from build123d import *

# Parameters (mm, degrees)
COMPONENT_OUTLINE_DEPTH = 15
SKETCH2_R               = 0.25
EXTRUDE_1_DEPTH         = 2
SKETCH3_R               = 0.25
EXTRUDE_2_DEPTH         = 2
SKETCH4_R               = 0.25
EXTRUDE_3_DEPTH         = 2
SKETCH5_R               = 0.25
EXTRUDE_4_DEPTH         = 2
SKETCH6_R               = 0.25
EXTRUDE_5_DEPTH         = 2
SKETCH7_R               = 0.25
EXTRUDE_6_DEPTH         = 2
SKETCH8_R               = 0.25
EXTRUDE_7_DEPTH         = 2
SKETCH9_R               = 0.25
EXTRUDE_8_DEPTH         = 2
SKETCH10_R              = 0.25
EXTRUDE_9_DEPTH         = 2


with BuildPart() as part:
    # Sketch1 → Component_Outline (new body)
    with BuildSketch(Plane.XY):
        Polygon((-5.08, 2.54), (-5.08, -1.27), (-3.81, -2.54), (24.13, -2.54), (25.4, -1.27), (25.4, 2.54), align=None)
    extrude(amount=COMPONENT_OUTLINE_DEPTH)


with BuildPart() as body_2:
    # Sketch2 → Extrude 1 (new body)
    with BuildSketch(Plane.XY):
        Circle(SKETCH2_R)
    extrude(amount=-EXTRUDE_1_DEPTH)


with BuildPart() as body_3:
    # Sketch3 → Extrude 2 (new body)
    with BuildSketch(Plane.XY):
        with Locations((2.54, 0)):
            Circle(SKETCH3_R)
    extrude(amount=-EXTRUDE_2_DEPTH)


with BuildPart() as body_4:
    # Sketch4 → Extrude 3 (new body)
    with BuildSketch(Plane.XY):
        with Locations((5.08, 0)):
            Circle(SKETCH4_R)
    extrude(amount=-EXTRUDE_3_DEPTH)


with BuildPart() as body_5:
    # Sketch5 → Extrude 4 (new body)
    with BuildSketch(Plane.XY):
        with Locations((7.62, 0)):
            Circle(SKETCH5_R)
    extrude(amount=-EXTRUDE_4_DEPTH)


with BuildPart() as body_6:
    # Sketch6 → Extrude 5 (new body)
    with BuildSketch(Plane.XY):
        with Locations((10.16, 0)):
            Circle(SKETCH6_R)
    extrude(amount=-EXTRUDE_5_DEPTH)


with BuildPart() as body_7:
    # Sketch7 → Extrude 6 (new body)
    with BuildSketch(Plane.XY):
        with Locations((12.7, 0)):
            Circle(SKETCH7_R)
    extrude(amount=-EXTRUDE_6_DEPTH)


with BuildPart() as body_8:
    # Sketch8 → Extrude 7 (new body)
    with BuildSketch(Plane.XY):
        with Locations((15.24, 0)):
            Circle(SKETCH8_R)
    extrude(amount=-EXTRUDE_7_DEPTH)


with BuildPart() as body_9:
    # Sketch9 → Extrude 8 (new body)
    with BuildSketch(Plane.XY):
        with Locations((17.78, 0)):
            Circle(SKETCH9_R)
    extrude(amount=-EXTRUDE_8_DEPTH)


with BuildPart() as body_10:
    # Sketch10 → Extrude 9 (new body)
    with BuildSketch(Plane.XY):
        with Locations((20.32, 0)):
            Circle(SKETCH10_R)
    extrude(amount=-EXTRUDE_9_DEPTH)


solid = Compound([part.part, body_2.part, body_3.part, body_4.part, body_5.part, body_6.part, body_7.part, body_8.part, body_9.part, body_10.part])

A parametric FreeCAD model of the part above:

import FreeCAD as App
import Part
import Sketcher

V = App.Vector
Q = App.Units.Quantity


def add_polygon(sketch, points):
    """Adds a closed chain of lines whose ends are joined by coincident constraints."""
    first, n = sketch.GeometryCount, len(points)
    for a, b in zip(points, points[1:] + points[:1]):
        sketch.addGeometry(Part.LineSegment(App.Vector(*a, 0), App.Vector(*b, 0)), False)
    for i in range(n):
        sketch.addConstraint(Sketcher.Constraint("Coincident", first + i, 2, first + (i + 1) % n, 1))

doc = App.newDocument("Part")
body = doc.addObject("PartDesign::Body", "Body")

# Sketch on XY plane
sketch1 = doc.addObject("Sketcher::SketchObject", "Sketch")
body.addObject(sketch1)
sketch1.AttachmentSupport = (doc.XY_Plane, [""])
sketch1.MapMode = "FlatFace"
add_polygon(sketch1, [(-5.1, 2.5), (-5.1, -1.3), (-3.8, -2.5), (24.1, -2.5), (25.4, -1.3), (25.4, 2.5)])  # lines 0-5
sketch1.addConstraint([
    Sketcher.Constraint("Vertical", 0),
    Sketcher.Constraint("Horizontal", 2),
    Sketcher.Constraint("Vertical", 4),
    Sketcher.Constraint("Horizontal", 5),
    Sketcher.Constraint("Perpendicular", 1, 3),
    Sketcher.Constraint("Horizontal", 0, 2, 3, 2),
    Sketcher.Constraint("Equal", 1, 3),
    Sketcher.Constraint("DistanceX", 2, 1, 2, 2, Q("27.94 mm")),
    Sketcher.Constraint("DistanceX", 5, 2, 5, 1, Q("30.48 mm")),
    Sketcher.Constraint("DistanceY", 0, 2, 0, 1, Q("3.81 mm")),
    Sketcher.Constraint("DistanceX", -1, 1, 3, 2, Q("25.4 mm")),
    Sketcher.Constraint("DistanceY", 0, 2, -1, 1, Q("1.27 mm")),
])
pad1 = doc.addObject("PartDesign::Pad", "Pad")
body.addObject(pad1)
pad1.Profile = sketch1
pad1.Length = 15
body2 = doc.addObject("PartDesign::Body", "Body001")

# Sketch on XY plane
sketch2 = doc.addObject("Sketcher::SketchObject", "Sketch001")
body2.addObject(sketch2)
sketch2.AttachmentSupport = (doc.getObject("XY_Plane001"), [""])
sketch2.MapMode = "FlatFace"
sketch2.addGeometry(Part.Circle(V(0, 0, 0), V(0, 0, 1), 0.25), False)
sketch2.addConstraint([
    Sketcher.Constraint("Coincident", 0, 3, -1, 1),
    Sketcher.Constraint("Diameter", 0, Q("0.5 mm")),
])
pad2 = doc.addObject("PartDesign::Pad", "Pad001")
body2.addObject(pad2)
pad2.Profile = sketch2
pad2.Length = 2
pad2.Reversed = True
body3 = doc.addObject("PartDesign::Body", "Body002")

# Sketch on XY plane
sketch3 = doc.addObject("Sketcher::SketchObject", "Sketch002")
body3.addObject(sketch3)
sketch3.AttachmentSupport = (doc.getObject("XY_Plane002"), [""])
sketch3.MapMode = "FlatFace"
sketch3.addGeometry(Part.Circle(V(2.54, 0, 0), V(0, 0, 1), 0.25), False)
sketch3.addConstraint([
    Sketcher.Constraint("PointOnObject", 0, 3, -1),
    Sketcher.Constraint("Diameter", 0, Q("0.5 mm")),
    Sketcher.Constraint("DistanceX", -1, 1, 0, 3, Q("2.54 mm")),
])
pad3 = doc.addObject("PartDesign::Pad", "Pad002")
body3.addObject(pad3)
pad3.Profile = sketch3
pad3.Length = 2
pad3.Reversed = True
body4 = doc.addObject("PartDesign::Body", "Body003")

# Sketch on XY plane
sketch4 = doc.addObject("Sketcher::SketchObject", "Sketch003")
body4.addObject(sketch4)
sketch4.AttachmentSupport = (doc.getObject("XY_Plane003"), [""])
sketch4.MapMode = "FlatFace"
sketch4.addGeometry(Part.Circle(V(5.08, 0, 0), V(0, 0, 1), 0.25), False)
sketch4.addConstraint([
    Sketcher.Constraint("PointOnObject", 0, 3, -1),
    Sketcher.Constraint("Diameter", 0, Q("0.5 mm")),
    Sketcher.Constraint("DistanceX", -1, 1, 0, 3, Q("5.08 mm")),
])
pad4 = doc.addObject("PartDesign::Pad", "Pad003")
body4.addObject(pad4)
pad4.Profile = sketch4
pad4.Length = 2
pad4.Reversed = True
body5 = doc.addObject("PartDesign::Body", "Body004")

# Sketch on XY plane
sketch5 = doc.addObject("Sketcher::SketchObject", "Sketch004")
body5.addObject(sketch5)
sketch5.AttachmentSupport = (doc.getObject("XY_Plane004"), [""])
sketch5.MapMode = "FlatFace"
sketch5.addGeometry(Part.Circle(V(7.62, 0, 0), V(0, 0, 1), 0.25), False)
sketch5.addConstraint([
    Sketcher.Constraint("PointOnObject", 0, 3, -1),
    Sketcher.Constraint("Diameter", 0, Q("0.5 mm")),
    Sketcher.Constraint("DistanceX", -1, 1, 0, 3, Q("7.62 mm")),
])
pad5 = doc.addObject("PartDesign::Pad", "Pad004")
body5.addObject(pad5)
pad5.Profile = sketch5
pad5.Length = 2
pad5.Reversed = True
body6 = doc.addObject("PartDesign::Body", "Body005")

# Sketch on XY plane
sketch6 = doc.addObject("Sketcher::SketchObject", "Sketch005")
body6.addObject(sketch6)
sketch6.AttachmentSupport = (doc.getObject("XY_Plane005"), [""])
sketch6.MapMode = "FlatFace"
sketch6.addGeometry(Part.Circle(V(10.16, 0, 0), V(0, 0, 1), 0.25), False)
sketch6.addConstraint([
    Sketcher.Constraint("PointOnObject", 0, 3, -1),
    Sketcher.Constraint("Diameter", 0, Q("0.5 mm")),
    Sketcher.Constraint("DistanceX", -1, 1, 0, 3, Q("10.16 mm")),
])
pad6 = doc.addObject("PartDesign::Pad", "Pad005")
body6.addObject(pad6)
pad6.Profile = sketch6
pad6.Length = 2
pad6.Reversed = True
body7 = doc.addObject("PartDesign::Body", "Body006")

# Sketch on XY plane
sketch7 = doc.addObject("Sketcher::SketchObject", "Sketch006")
body7.addObject(sketch7)
sketch7.AttachmentSupport = (doc.getObject("XY_Plane006"), [""])
sketch7.MapMode = "FlatFace"
sketch7.addGeometry(Part.Circle(V(12.7, 0, 0), V(0, 0, 1), 0.25), False)
sketch7.addConstraint([
    Sketcher.Constraint("PointOnObject", 0, 3, -1),
    Sketcher.Constraint("Diameter", 0, Q("0.5 mm")),
    Sketcher.Constraint("DistanceX", -1, 1, 0, 3, Q("12.7 mm")),
])
pad7 = doc.addObject("PartDesign::Pad", "Pad006")
body7.addObject(pad7)
pad7.Profile = sketch7
pad7.Length = 2
pad7.Reversed = True
body8 = doc.addObject("PartDesign::Body", "Body007")

# Sketch on XY plane
sketch8 = doc.addObject("Sketcher::SketchObject", "Sketch007")
body8.addObject(sketch8)
sketch8.AttachmentSupport = (doc.getObject("XY_Plane007"), [""])
sketch8.MapMode = "FlatFace"
sketch8.addGeometry(Part.Circle(V(15.24, 0, 0), V(0, 0, 1), 0.25), False)
sketch8.addConstraint([
    Sketcher.Constraint("PointOnObject", 0, 3, -1),
    Sketcher.Constraint("Diameter", 0, Q("0.5 mm")),
    Sketcher.Constraint("DistanceX", -1, 1, 0, 3, Q("15.24 mm")),
])
pad8 = doc.addObject("PartDesign::Pad", "Pad007")
body8.addObject(pad8)
pad8.Profile = sketch8
pad8.Length = 2
pad8.Reversed = True
body9 = doc.addObject("PartDesign::Body", "Body008")

# Sketch on XY plane
sketch9 = doc.addObject("Sketcher::SketchObject", "Sketch008")
body9.addObject(sketch9)
sketch9.AttachmentSupport = (doc.getObject("XY_Plane008"), [""])
sketch9.MapMode = "FlatFace"
sketch9.addGeometry(Part.Circle(V(17.78, 0, 0), V(0, 0, 1), 0.25), False)
sketch9.addConstraint([
    Sketcher.Constraint("PointOnObject", 0, 3, -1),
    Sketcher.Constraint("Diameter", 0, Q("0.5 mm")),
    Sketcher.Constraint("DistanceX", -1, 1, 0, 3, Q("17.78 mm")),
])
pad9 = doc.addObject("PartDesign::Pad", "Pad008")
body9.addObject(pad9)
pad9.Profile = sketch9
pad9.Length = 2
pad9.Reversed = True
body10 = doc.addObject("PartDesign::Body", "Body009")

# Sketch on XY plane
sketch10 = doc.addObject("Sketcher::SketchObject", "Sketch009")
body10.addObject(sketch10)
sketch10.AttachmentSupport = (doc.getObject("XY_Plane009"), [""])
sketch10.MapMode = "FlatFace"
sketch10.addGeometry(Part.Circle(V(20.32, 0, 0), V(0, 0, 1), 0.25), False)
sketch10.addConstraint([
    Sketcher.Constraint("PointOnObject", 0, 3, -1),
    Sketcher.Constraint("Diameter", 0, Q("0.5 mm")),
    Sketcher.Constraint("DistanceX", -1, 1, 0, 3, Q("20.32 mm")),
])
pad10 = doc.addObject("PartDesign::Pad", "Pad009")
body10.addObject(pad10)
pad10.Profile = sketch10
pad10.Length = 2
pad10.Reversed = True

doc.recompute()
